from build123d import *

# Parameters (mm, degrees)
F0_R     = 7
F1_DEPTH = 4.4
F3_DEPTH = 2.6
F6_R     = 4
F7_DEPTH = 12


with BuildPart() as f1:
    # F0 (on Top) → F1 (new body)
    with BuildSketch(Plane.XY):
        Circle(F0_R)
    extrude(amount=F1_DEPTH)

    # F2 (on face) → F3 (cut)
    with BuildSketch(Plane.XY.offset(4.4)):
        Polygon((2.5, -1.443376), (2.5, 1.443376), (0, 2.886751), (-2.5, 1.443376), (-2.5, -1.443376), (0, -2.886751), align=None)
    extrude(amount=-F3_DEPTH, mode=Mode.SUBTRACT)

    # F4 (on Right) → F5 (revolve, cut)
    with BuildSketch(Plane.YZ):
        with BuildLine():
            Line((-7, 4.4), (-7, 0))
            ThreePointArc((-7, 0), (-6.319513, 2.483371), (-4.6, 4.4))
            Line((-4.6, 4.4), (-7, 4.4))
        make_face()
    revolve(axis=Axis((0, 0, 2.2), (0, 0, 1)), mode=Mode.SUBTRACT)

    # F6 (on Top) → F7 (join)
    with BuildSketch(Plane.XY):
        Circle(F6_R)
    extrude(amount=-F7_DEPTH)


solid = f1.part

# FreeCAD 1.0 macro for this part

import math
import FreeCAD as App
import Part
import Sketcher
Q = App.Units.Quantity


def add_polygon(sketch, points):
    """Adds a closed chain of lines whose ends are joined by coincident constraints."""
    first, n = sketch.GeometryCount, len(points)
    for a, b in zip(points, points[1:] + points[:1]):
        sketch.addGeometry(Part.LineSegment(App.Vector(*a, 0), App.Vector(*b, 0)), False)
    for i in range(n):
        sketch.addConstraint(Sketcher.Constraint("Coincident", first + i, 2, first + (i + 1) % n, 1))

doc = App.newDocument("Part")
body = doc.addObject("PartDesign::Body", "Body")

sketch1 = body.newObject("Sketcher::SketchObject", "Sketch")
sketch1.AttachmentSupport = (doc.getObject("XY_Plane"), [""])
sketch1.MapMode = "FlatFace"
sketch1.addGeometry(Part.Circle(App.Vector(0, 0, 0), App.Vector(0, 0, 1), 7), False)
sketch1.addConstraint(Sketcher.Constraint("Coincident", 0, 3, -1, 1))
sketch1.addConstraint(Sketcher.Constraint("Diameter", 0, Q("14 mm")))
pad1 = body.newObject("PartDesign::Pad", "Pad")
pad1.Profile = sketch1
pad1.Length = 4.4

sketch2 = body.newObject("Sketcher::SketchObject", "Sketch001")
sketch2.AttachmentSupport = (doc.getObject("XY_Plane"), [""])
sketch2.MapMode = "FlatFace"
sketch2.AttachmentOffset = App.Placement(App.Vector(0, 0, 4.4), App.Rotation())
add_polygon(sketch2, [(2.5, -1.4), (2.5, 1.4), (0, 2.9), (-2.5, 1.4), (-2.5, -1.4), (0, -2.9)])
sketch2.addConstraint(Sketcher.Constraint("Vertical", 0))
sketch2.addConstraint(Sketcher.Constraint("Vertical", 3))
sketch2.addConstraint(Sketcher.Constraint("Symmetric", 0, 2, 3, 2, -1, 1))
sketch2.addConstraint(Sketcher.Constraint("Symmetric", 1, 2, 4, 2, -1, 1))
sketch2.addConstraint(Sketcher.Constraint("PointOnObject", 1, 2, -2))
sketch2.addConstraint(Sketcher.Constraint("Parallel", 2, 5))
sketch2.addConstraint(Sketcher.Constraint("Horizontal", 0, 2, 2, 2))
sketch2.addConstraint(Sketcher.Constraint("Angle", 1, Q("150.000012 deg")))
sketch2.addConstraint(Sketcher.Constraint("DistanceX", 2, 2, 0, 2, Q("5 mm")))
sketch2.addConstraint(Sketcher.Constraint("DistanceY", 0, 1, 0, 2, Q("2.886752 mm")))
pocket1 = body.newObject("PartDesign::Pocket", "Pocket")
pocket1.Profile = sketch2
pocket1.Length = 2.6

sketch3 = body.newObject("Sketcher::SketchObject", "Sketch002")
sketch3.AttachmentSupport = (doc.getObject("YZ_Plane"), [""])
sketch3.MapMode = "FlatFace"
sketch3.addGeometry(Part.LineSegment(App.Vector(-7, 4.4, 0), App.Vector(-7, 0, 0)), False)
sketch3.addGeometry(Part.ArcOfCircle(Part.Circle(App.Vector(-1.4, -0.2, 0), App.Vector(0, 0, 1), 5.6), math.radians(125), math.radians(178)), False)
sketch3.addGeometry(Part.LineSegment(App.Vector(-4.6, 4.4, 0), App.Vector(-7, 4.4, 0)), False)
sketch3.addConstraint(Sketcher.Constraint("Coincident", 0, 2, 1, 2))
sketch3.addConstraint(Sketcher.Constraint("Coincident", 1, 1, 2, 1))
sketch3.addConstraint(Sketcher.Constraint("Coincident", 2, 2, 0, 1))
sketch3.addConstraint(Sketcher.Constraint("Vertical", 0))
sketch3.addConstraint(Sketcher.Constraint("Horizontal", 2))
sketch3.addConstraint(Sketcher.Constraint("PointOnObject", 0, 2, -1))
sketch3.addConstraint(Sketcher.Constraint("DistanceX", 2, 2, 2, 1, Q("2.4 mm")))
sketch3.addConstraint(Sketcher.Constraint("DistanceY", 0, 2, 0, 1, Q("4.4 mm")))
sketch3.addConstraint(Sketcher.Constraint("DistanceX", 0, 2, -1, 1, Q("7 mm")))
sketch3.addConstraint(Sketcher.Constraint("Radius", 1, Q("5.601992 mm")))
groove = body.newObject("PartDesign::Groove", "Groove")
groove.Profile = sketch3
groove.ReferenceAxis = (sketch3, ["V_Axis"])
groove.Angle = 360

sketch4 = body.newObject("Sketcher::SketchObject", "Sketch003")
sketch4.AttachmentSupport = (doc.getObject("XY_Plane"), [""])
sketch4.MapMode = "FlatFace"
sketch4.addGeometry(Part.Circle(App.Vector(0, 0, 0), App.Vector(0, 0, 1), 4), False)
sketch4.addConstraint(Sketcher.Constraint("Coincident", 0, 3, -1, 1))
sketch4.addConstraint(Sketcher.Constraint("Diameter", 0, Q("8 mm")))
pad2 = body.newObject("PartDesign::Pad", "Pad001")
pad2.Profile = sketch4
pad2.Length = 12
pad2.Reversed = True

doc.recompute()
